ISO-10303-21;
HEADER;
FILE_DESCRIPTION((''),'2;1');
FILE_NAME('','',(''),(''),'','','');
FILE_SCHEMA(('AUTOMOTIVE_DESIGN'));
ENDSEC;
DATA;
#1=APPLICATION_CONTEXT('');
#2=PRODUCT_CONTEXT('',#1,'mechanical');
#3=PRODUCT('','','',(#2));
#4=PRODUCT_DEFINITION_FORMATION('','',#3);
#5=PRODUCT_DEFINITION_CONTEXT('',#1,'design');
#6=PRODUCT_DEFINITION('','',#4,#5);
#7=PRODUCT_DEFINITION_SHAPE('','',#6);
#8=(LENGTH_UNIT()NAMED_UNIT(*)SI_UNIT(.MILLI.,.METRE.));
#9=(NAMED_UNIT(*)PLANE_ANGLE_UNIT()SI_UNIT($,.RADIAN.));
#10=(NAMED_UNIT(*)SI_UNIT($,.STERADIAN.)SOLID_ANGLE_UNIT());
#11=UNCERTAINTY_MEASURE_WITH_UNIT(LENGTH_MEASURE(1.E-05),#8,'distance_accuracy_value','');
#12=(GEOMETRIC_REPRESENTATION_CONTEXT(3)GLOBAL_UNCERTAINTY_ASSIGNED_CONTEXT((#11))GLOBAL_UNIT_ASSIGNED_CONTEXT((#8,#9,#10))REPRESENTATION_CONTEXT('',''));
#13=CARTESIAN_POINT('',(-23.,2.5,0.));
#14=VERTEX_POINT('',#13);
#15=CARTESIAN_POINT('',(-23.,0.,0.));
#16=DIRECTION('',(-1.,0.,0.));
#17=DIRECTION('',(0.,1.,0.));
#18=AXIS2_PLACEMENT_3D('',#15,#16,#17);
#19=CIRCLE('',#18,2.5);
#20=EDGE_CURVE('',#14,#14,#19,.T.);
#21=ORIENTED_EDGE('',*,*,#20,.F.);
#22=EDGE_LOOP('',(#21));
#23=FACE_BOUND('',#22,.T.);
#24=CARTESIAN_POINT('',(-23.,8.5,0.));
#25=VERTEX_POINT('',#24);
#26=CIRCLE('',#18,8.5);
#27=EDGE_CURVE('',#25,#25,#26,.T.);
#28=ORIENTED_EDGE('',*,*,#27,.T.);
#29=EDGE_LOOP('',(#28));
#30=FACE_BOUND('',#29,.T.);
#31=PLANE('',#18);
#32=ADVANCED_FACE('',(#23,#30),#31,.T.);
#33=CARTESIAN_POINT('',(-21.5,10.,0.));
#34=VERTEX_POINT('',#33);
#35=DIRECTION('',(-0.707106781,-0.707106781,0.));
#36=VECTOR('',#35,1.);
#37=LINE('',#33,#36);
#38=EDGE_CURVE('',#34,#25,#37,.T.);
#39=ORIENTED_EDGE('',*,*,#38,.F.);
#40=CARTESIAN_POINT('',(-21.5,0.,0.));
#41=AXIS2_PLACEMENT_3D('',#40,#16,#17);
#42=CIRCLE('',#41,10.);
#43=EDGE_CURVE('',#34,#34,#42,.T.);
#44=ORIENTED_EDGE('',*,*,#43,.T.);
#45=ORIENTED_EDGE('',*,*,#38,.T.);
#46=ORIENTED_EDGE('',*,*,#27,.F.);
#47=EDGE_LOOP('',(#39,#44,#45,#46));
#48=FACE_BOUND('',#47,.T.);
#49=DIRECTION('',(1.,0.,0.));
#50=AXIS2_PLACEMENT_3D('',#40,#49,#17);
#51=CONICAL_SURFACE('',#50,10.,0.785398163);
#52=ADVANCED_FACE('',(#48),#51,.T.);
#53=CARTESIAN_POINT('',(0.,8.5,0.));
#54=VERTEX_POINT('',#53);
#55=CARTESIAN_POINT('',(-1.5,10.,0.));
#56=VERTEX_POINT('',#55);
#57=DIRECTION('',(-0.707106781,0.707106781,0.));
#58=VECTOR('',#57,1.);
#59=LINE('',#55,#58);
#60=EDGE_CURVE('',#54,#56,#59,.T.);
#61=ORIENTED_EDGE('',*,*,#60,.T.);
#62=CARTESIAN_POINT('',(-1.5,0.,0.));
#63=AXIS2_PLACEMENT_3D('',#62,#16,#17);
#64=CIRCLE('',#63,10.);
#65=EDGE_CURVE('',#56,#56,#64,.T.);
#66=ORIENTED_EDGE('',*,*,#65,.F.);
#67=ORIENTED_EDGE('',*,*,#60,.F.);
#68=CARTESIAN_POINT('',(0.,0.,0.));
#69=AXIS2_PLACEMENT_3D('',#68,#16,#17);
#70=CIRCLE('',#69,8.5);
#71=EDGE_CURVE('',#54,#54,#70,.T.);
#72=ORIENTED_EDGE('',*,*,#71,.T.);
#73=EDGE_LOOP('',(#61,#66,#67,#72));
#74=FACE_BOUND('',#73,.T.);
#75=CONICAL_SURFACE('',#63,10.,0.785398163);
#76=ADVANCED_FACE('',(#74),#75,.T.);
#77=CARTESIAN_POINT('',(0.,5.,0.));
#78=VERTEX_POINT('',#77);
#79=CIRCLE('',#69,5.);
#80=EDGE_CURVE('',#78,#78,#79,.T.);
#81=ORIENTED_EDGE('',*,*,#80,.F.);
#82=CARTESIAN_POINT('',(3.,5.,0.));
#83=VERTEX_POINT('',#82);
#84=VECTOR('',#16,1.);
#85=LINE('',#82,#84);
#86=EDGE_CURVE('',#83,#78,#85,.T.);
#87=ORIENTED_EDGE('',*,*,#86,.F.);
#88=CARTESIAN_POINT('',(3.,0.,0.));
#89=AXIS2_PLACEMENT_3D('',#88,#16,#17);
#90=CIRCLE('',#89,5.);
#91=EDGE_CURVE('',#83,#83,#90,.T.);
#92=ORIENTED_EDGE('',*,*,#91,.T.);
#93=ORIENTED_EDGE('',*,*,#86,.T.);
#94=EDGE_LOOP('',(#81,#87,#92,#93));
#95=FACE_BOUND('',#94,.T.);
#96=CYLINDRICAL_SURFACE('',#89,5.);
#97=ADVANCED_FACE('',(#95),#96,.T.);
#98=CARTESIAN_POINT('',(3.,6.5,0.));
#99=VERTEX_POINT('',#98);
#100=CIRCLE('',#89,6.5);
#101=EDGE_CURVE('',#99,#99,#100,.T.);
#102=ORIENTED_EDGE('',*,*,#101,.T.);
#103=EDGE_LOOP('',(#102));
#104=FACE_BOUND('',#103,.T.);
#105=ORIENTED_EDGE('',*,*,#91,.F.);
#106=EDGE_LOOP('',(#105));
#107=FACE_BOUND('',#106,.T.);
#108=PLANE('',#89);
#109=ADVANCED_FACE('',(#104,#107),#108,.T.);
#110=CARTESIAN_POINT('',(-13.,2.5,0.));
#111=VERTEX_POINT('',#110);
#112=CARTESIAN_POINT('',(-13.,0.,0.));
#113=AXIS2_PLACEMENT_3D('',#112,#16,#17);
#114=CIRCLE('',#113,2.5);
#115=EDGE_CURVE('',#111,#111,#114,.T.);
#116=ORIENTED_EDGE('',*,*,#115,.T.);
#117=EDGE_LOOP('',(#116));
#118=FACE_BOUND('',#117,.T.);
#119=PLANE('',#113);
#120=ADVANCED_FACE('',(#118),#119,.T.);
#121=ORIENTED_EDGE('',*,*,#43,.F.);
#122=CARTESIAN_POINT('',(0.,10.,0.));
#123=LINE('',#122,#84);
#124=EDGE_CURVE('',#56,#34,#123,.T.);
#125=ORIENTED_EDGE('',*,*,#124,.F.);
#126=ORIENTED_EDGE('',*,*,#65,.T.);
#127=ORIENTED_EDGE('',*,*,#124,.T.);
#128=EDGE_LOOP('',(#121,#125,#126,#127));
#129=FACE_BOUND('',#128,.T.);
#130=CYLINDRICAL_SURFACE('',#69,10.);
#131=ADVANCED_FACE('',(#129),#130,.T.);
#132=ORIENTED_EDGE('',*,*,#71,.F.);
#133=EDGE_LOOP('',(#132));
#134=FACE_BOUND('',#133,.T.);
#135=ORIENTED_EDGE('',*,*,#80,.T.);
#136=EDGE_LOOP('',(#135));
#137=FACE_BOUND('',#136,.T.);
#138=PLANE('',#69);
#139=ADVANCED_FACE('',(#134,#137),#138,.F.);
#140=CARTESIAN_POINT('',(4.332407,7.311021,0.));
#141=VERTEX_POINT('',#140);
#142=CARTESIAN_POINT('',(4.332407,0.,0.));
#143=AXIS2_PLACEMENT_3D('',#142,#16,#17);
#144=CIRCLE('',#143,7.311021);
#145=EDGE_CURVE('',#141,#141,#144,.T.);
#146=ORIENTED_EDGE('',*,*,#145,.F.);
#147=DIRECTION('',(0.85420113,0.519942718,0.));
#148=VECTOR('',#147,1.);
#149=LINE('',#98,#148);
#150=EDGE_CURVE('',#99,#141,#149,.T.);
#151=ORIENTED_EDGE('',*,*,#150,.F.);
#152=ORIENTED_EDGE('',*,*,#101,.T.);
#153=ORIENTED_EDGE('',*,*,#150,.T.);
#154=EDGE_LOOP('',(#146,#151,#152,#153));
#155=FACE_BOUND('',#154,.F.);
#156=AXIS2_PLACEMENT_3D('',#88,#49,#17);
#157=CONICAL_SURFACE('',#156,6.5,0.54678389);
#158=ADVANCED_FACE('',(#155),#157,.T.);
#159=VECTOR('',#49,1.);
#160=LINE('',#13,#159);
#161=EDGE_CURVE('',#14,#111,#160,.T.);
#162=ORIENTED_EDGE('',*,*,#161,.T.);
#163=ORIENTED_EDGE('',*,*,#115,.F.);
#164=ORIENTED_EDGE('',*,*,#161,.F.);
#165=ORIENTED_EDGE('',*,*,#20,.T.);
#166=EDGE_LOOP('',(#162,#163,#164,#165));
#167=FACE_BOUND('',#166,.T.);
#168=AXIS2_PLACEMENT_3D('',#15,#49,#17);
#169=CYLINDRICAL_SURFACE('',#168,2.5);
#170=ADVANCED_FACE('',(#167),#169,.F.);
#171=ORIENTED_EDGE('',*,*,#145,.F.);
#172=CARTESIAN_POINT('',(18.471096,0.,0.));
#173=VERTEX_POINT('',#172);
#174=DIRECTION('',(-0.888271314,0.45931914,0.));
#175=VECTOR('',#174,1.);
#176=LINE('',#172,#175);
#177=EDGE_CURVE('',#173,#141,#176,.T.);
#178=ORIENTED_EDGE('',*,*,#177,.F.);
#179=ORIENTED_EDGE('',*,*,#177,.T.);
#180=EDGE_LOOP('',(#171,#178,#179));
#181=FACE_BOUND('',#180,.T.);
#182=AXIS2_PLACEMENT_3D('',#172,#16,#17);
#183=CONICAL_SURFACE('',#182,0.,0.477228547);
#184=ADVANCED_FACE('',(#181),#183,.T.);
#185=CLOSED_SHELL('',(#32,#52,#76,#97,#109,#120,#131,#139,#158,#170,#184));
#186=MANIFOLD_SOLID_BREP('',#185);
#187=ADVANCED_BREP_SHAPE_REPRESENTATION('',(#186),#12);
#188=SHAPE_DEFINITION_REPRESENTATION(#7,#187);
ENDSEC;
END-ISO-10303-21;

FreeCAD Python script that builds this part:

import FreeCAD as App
import Part
import Sketcher
from FreeCAD import Vector
Q = App.Units.Quantity


def edges_at(feature, points):
    """Names of the edges that pass closest to the given points."""
    edges = feature.Shape.Edges
    near = lambda p: min(range(len(edges)), key=lambda i: edges[i].distToShape(Part.Vertex(*p))[0])
    return sorted({f"Edge{near(p) + 1}" for p in points})


def add_polygon(sketch, points):
    """Adds a closed chain of lines whose ends are joined by coincident constraints."""
    first, n = sketch.GeometryCount, len(points)
    for a, b in zip(points, points[1:] + points[:1]):
        sketch.addGeometry(Part.LineSegment(App.Vector(*a, 0), App.Vector(*b, 0)), False)
    for i in range(n):
        sketch.addConstraint(Sketcher.Constraint("Coincident", first + i, 2, first + (i + 1) % n, 1))

doc = App.newDocument("Part")
body = doc.addObject("PartDesign::Body", "Body")

# Sketch on XY plane
sketch1 = doc.addObject("Sketcher::SketchObject", "Sketch")
body.addObject(sketch1)
sketch1.AttachmentSupport = (doc.XY_Plane, [""])
sketch1.MapMode = "FlatFace"
add_polygon(sketch1, [(3, 5), (0, 5), (0, 10), (-23, 10), (-23, 2.5), (-13, 2.5), (-13, 0), (18.5, 0), (3, 8)])  # lines 0-8
sketch1.addConstraint([
    Sketcher.Constraint("Horizontal", 0),
    Sketcher.Constraint("Vertical", 1),
    Sketcher.Constraint("Horizontal", 2),
    Sketcher.Constraint("Vertical", 3),
    Sketcher.Constraint("Horizontal", 4),
    Sketcher.Constraint("Vertical", 5),
    Sketcher.Constraint("Horizontal", 6),
    Sketcher.Constraint("Vertical", 8),
    Sketcher.Constraint("PointOnObject", 0, 2, -2),
    Sketcher.Constraint("PointOnObject", 5, 2, -1),
    Sketcher.Constraint("Equal", 0, 8),
    Sketcher.Constraint("DistanceX", 0, 2, 0, 1, Q("3 mm")),
    Sketcher.Constraint("DistanceX", 2, 2, 2, 1, Q("23 mm")),
    Sketcher.Constraint("DistanceX", 4, 1, 4, 2, Q("10 mm")),
    Sketcher.Constraint("DistanceY", 1, 1, 1, 2, Q("5 mm")),
    Sketcher.Constraint("DistanceY", 3, 2, 3, 1, Q("7.5 mm")),
    Sketcher.Constraint("DistanceY", 5, 2, 5, 1, Q("2.5 mm")),
    Sketcher.Constraint("DistanceX", 6, 1, 6, 2, Q("31.471096 mm")),
])
revolution = doc.addObject("PartDesign::Revolution", "Revolution")
body.addObject(revolution)
revolution.Profile = sketch1
revolution.ReferenceAxis = (sketch1, ["H_Axis"])
revolution.Angle = 360
doc.recompute()

chamfer = doc.addObject("PartDesign::Chamfer", "Chamfer")
body.addObject(chamfer)
chamfer.Base = (revolution, edges_at(revolution, [(0, -10, 0), (-23, -10, 0), (-11.5, 10, 0)]))
chamfer.Size = 1.5
doc.recompute()

chamfer2 = doc.addObject("PartDesign::Chamfer", "Chamfer001")
body.addObject(chamfer2)
chamfer2.Base = (chamfer, edges_at(chamfer, [(3, -8, 0)]))
chamfer2.Size = 1.5

doc.recompute()
